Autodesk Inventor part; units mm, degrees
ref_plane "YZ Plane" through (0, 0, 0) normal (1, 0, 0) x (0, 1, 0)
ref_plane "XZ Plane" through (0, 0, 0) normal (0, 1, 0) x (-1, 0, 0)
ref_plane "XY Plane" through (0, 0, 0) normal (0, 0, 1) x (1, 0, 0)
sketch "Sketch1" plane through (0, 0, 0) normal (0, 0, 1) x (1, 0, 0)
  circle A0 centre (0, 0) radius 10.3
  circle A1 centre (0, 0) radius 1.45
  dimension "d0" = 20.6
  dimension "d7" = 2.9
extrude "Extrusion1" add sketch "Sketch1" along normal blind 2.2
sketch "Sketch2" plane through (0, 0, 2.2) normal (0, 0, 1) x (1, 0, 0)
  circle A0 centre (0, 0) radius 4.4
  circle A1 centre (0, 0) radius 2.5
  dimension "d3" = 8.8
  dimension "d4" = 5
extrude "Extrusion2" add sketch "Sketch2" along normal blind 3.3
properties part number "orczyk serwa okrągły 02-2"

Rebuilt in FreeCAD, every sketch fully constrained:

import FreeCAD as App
import Part
import Sketcher

V = App.Vector
Q = App.Units.Quantity

doc = App.newDocument("Part")
body = doc.addObject("PartDesign::Body", "Body")

# Sketch on XY plane
sketch1 = body.newObject("Sketcher::SketchObject", "Sketch")
sketch1.AttachmentSupport = (doc.getObject("XY_Plane"), [""])
sketch1.MapMode = "FlatFace"
sketch1.addGeometry(Part.Circle(V(0, 0, 0), V(0, 0, 1), 10.3), False)
sketch1.addGeometry(Part.Circle(V(0, 0, 0), V(0, 0, 1), 1.4), False)
sketch1.addConstraint(Sketcher.Constraint("Coincident", 0, 3, -1, 1))
sketch1.addConstraint(Sketcher.Constraint("Coincident", 1, 3, -1, 1))
sketch1.addConstraint(Sketcher.Constraint("Diameter", 0, Q("20.6 mm")))
sketch1.addConstraint(Sketcher.Constraint("Diameter", 1, Q("2.9 mm")))
pad1 = body.newObject("PartDesign::Pad", "Pad")
pad1.Profile = sketch1
pad1.Length = 2.2

# Sketch on XY plane
sketch2 = body.newObject("Sketcher::SketchObject", "Sketch001")
sketch2.AttachmentSupport = (doc.getObject("XY_Plane"), [""])
sketch2.MapMode = "FlatFace"
sketch2.AttachmentOffset = App.Placement(V(0, 0, 2.2), App.Rotation())
sketch2.addGeometry(Part.Circle(V(0, 0, 0), V(0, 0, 1), 4.4), False)
sketch2.addGeometry(Part.Circle(V(0, 0, 0), V(0, 0, 1), 2.5), False)
sketch2.addConstraint(Sketcher.Constraint("Coincident", 0, 3, -1, 1))
sketch2.addConstraint(Sketcher.Constraint("Coincident", 1, 3, -1, 1))
sketch2.addConstraint(Sketcher.Constraint("Diameter", 1, Q("5 mm")))
sketch2.addConstraint(Sketcher.Constraint("Diameter", 0, Q("8.8 mm")))
pad2 = body.newObject("PartDesign::Pad", "Pad001")
pad2.Profile = sketch2
pad2.Length = 3.3

doc.recompute()
